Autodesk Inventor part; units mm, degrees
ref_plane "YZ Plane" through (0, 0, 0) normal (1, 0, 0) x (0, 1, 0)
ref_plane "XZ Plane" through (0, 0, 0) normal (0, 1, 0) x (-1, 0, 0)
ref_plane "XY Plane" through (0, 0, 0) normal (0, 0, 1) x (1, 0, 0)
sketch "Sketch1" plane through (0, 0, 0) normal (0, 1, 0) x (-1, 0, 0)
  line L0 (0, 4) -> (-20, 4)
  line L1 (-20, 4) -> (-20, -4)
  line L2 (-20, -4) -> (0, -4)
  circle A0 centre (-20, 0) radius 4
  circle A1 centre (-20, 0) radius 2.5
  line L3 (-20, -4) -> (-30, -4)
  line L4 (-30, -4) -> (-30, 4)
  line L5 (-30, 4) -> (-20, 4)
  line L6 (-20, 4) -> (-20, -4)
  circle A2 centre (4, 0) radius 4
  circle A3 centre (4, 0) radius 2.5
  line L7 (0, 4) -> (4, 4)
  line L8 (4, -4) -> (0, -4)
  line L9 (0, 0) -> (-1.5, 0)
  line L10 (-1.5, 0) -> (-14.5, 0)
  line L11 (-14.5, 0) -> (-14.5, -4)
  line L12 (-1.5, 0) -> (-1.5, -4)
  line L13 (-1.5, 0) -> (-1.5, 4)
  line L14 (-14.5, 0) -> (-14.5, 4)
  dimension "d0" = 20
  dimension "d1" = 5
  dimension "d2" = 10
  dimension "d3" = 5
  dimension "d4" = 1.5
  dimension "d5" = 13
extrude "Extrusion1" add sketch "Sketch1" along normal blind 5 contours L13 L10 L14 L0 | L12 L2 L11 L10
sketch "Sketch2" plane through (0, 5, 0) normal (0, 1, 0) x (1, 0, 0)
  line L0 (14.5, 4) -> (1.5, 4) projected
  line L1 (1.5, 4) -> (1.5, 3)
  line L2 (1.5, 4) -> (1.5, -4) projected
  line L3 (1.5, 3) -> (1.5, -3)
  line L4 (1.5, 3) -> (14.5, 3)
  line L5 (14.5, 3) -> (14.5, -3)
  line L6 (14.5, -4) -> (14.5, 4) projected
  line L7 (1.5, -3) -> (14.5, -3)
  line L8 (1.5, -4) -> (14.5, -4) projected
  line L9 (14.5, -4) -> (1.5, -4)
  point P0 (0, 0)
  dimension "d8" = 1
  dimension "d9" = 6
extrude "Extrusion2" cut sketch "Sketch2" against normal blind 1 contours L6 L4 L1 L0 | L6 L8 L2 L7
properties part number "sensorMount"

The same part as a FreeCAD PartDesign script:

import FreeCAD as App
import Part
import Sketcher

V = App.Vector
Q = App.Units.Quantity

doc = App.newDocument("Part")
body = doc.addObject("PartDesign::Body", "Body")

# Sketch on XZ plane
sketch1 = body.newObject("Sketcher::SketchObject", "Sketch")
sketch1.AttachmentSupport = (doc.getObject("XZ_Plane"), [""])
sketch1.MapMode = "FlatFace"
sketch1.addGeometry([
    Part.LineSegment(V(1.5, 4, 0), V(14.5, 4, 0)),
    Part.LineSegment(V(14.5, 4, 0), V(14.5, -4, 0)),
    Part.LineSegment(V(14.5, -4, 0), V(1.5, -4, 0)),
    Part.LineSegment(V(1.5, -4, 0), V(1.5, 4, 0)),
], False)
sketch1.addConstraint([
    Sketcher.Constraint("Coincident", 0, 2, 1, 1),
    Sketcher.Constraint("Coincident", 1, 2, 2, 1),
    Sketcher.Constraint("Coincident", 2, 2, 3, 1),
    Sketcher.Constraint("Coincident", 3, 2, 0, 1),
    Sketcher.Constraint("Horizontal", 0),
    Sketcher.Constraint("Vertical", 1),
    Sketcher.Constraint("Horizontal", 2),
    Sketcher.Constraint("Vertical", 3),
    Sketcher.Constraint("DistanceX", 0, 1, 0, 2, Q("13 mm")),
    Sketcher.Constraint("DistanceX", -1, 1, 2, 2, Q("1.5 mm")),
    Sketcher.Constraint("DistanceY", 1, 2, 1, 1, Q("8 mm")),
    Sketcher.Constraint("DistanceY", -1, 1, 0, 2, Q("4 mm")),
])
pad1 = body.newObject("PartDesign::Pad", "Pad")
pad1.Profile = sketch1
pad1.Length = 5
pad1.Reversed = True

# Sketch on XZ plane
sketch2 = body.newObject("Sketcher::SketchObject", "Sketch001")
sketch2.AttachmentSupport = (doc.getObject("XZ_Plane"), [""])
sketch2.MapMode = "FlatFace"
sketch2.AttachmentOffset = App.Placement(V(0, 0, -5), App.Rotation())
sketch2.addGeometry([
    Part.LineSegment(V(14.5, -3, 0), V(14.5, -4, 0)),  # 0
    Part.LineSegment(V(14.5, -4, 0), V(1.5, -4, 0)),  # 1
    Part.LineSegment(V(1.5, -4, 0), V(1.5, -3, 0)),  # 2
    Part.LineSegment(V(1.5, -3, 0), V(14.5, -3, 0)),  # 3
    Part.LineSegment(V(14.5, 4, 0), V(14.5, 3, 0)),  # 4
    Part.LineSegment(V(14.5, 3, 0), V(1.5, 3, 0)),  # 5
    Part.LineSegment(V(1.5, 3, 0), V(1.5, 4, 0)),  # 6
    Part.LineSegment(V(1.5, 4, 0), V(14.5, 4, 0)),  # 7
], False)
sketch2.addConstraint([
    Sketcher.Constraint("Coincident", 0, 2, 1, 1),
    Sketcher.Constraint("Coincident", 1, 2, 2, 1),
    Sketcher.Constraint("Coincident", 2, 2, 3, 1),
    Sketcher.Constraint("Coincident", 3, 2, 0, 1),
    Sketcher.Constraint("Coincident", 4, 2, 5, 1),
    Sketcher.Constraint("Coincident", 5, 2, 6, 1),
    Sketcher.Constraint("Coincident", 6, 2, 7, 1),
    Sketcher.Constraint("Coincident", 7, 2, 4, 1),
    Sketcher.Constraint("Vertical", 0),
    Sketcher.Constraint("Horizontal", 1),
    Sketcher.Constraint("Vertical", 2),
    Sketcher.Constraint("Horizontal", 3),
    Sketcher.Constraint("Vertical", 4),
    Sketcher.Constraint("Horizontal", 5),
    Sketcher.Constraint("Vertical", 6),
    Sketcher.Constraint("Horizontal", 7),
    Sketcher.Constraint("Symmetric", 3, 2, 4, 2, -1),
    Sketcher.Constraint("Symmetric", 1, 2, 6, 2, -1),
    Sketcher.Constraint("DistanceY", 0, 2, 0, 1, Q("1 mm")),
    Sketcher.Constraint("DistanceY", 3, 2, 4, 2, Q("6 mm")),
    Sketcher.Constraint("DistanceX", 1, 2, 1, 1, Q("13 mm")),
    Sketcher.Constraint("DistanceX", -1, 1, 0, 2, Q("14.5 mm")),
])
pocket1 = body.newObject("PartDesign::Pocket", "Pocket")
pocket1.Profile = sketch2
pocket1.Length = 1
pocket1.Reversed = True

doc.recompute()
